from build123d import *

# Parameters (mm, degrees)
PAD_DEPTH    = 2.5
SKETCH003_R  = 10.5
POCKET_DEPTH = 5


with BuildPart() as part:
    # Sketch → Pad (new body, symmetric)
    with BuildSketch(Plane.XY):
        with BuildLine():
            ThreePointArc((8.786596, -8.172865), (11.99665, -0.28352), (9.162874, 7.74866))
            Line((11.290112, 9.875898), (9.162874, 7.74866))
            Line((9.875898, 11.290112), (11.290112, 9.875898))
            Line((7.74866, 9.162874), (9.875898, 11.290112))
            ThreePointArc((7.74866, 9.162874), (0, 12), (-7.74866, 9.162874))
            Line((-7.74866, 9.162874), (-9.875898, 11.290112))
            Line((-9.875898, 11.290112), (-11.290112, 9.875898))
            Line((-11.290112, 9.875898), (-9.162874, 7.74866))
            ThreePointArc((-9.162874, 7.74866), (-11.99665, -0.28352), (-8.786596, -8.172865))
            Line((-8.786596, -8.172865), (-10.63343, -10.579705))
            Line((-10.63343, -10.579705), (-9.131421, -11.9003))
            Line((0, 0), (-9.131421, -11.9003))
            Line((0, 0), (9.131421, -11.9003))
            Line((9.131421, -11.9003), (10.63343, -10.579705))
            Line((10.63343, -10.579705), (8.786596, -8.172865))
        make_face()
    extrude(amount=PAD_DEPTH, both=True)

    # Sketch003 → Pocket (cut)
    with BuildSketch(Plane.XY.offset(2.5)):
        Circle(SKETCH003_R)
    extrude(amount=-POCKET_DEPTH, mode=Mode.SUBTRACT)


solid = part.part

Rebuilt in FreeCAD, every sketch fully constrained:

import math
import FreeCAD as App
import Part
import Sketcher
from FreeCAD import Vector
Q = App.Units.Quantity

doc = App.newDocument("Part")
body = doc.addObject("PartDesign::Body", "Body")

sketch1 = body.newObject("Sketcher::SketchObject", "Sketch")
sketch1.AttachmentSupport = (doc.getObject("XY_Plane"), [""])
sketch1.MapMode = "FlatFace"
sketch1.addGeometry(Part.ArcOfCircle(Part.Circle(Vector(0.000001, 0, 0), Vector(0, 0, 1), 11.999999), math.radians(-42.92748), math.radians(40.219808)), False)
sketch1.addGeometry(Part.LineSegment(Vector(9.162874, 7.74866, 0), Vector(11.290112, 9.875898, 0)), False)
sketch1.addGeometry(Part.LineSegment(Vector(11.290112, 9.875898, 0), Vector(9.875898, 11.290112, 0)), False)
sketch1.addGeometry(Part.LineSegment(Vector(9.875898, 11.290112, 0), Vector(7.74866, 9.162874, 0)), False)
sketch1.addGeometry(Part.ArcOfCircle(Part.Circle(Vector(0, 0.000001, 0), Vector(0, 0, 1), 11.999999), math.radians(49.780189), math.radians(130.219811)), False)
sketch1.addGeometry(Part.LineSegment(Vector(-7.74866, 9.162874, 0), Vector(-9.875898, 11.290112, 0)), False)
sketch1.addGeometry(Part.LineSegment(Vector(-9.875898, 11.290112, 0), Vector(-11.290112, 9.875898, 0)), False)
sketch1.addGeometry(Part.LineSegment(Vector(-11.290112, 9.875898, 0), Vector(-9.162874, 7.74866, 0)), False)
sketch1.addGeometry(Part.ArcOfCircle(Part.Circle(Vector(-0.000001, 0, 0), Vector(0, 0, 1), 11.999999), math.radians(139.780192), math.radians(222.92748)), False)
sketch1.addGeometry(Part.LineSegment(Vector(-8.786596, -8.172865, 0), Vector(-10.63343, -10.579705, 0)), False)
sketch1.addGeometry(Part.LineSegment(Vector(-10.63343, -10.579705, 0), Vector(-9.131421, -11.9003, 0)), False)
sketch1.addGeometry(Part.LineSegment(Vector(-9.131421, -11.9003, 0), Vector(0, 0, 0)), False)
sketch1.addGeometry(Part.LineSegment(Vector(0, 0, 0), Vector(9.131421, -11.9003, 0)), False)
sketch1.addGeometry(Part.LineSegment(Vector(9.131421, -11.9003, 0), Vector(10.63343, -10.579705, 0)), False)
sketch1.addGeometry(Part.LineSegment(Vector(10.63343, -10.579705, 0), Vector(8.786596, -8.172865, 0)), False)
sketch1.addConstraint(Sketcher.Constraint("Coincident", 0, 2, 1, 1))
sketch1.addConstraint(Sketcher.Constraint("Coincident", 1, 2, 2, 1))
sketch1.addConstraint(Sketcher.Constraint("Coincident", 2, 2, 3, 1))
sketch1.addConstraint(Sketcher.Constraint("Coincident", 3, 2, 4, 1))
sketch1.addConstraint(Sketcher.Constraint("Coincident", 4, 2, 5, 1))
sketch1.addConstraint(Sketcher.Constraint("Coincident", 5, 2, 6, 1))
sketch1.addConstraint(Sketcher.Constraint("Coincident", 6, 2, 7, 1))
sketch1.addConstraint(Sketcher.Constraint("Coincident", 7, 2, 8, 1))
sketch1.addConstraint(Sketcher.Constraint("Coincident", 8, 2, 9, 1))
sketch1.addConstraint(Sketcher.Constraint("Coincident", 9, 2, 10, 1))
sketch1.addConstraint(Sketcher.Constraint("Coincident", 10, 2, 11, 1))
sketch1.addConstraint(Sketcher.Constraint("Coincident", 11, 2, 12, 1))
sketch1.addConstraint(Sketcher.Constraint("Coincident", 12, 2, 13, 1))
sketch1.addConstraint(Sketcher.Constraint("Coincident", 13, 2, 14, 1))
sketch1.addConstraint(Sketcher.Constraint("Coincident", 14, 2, 0, 1))
sketch1.addConstraint(Sketcher.Constraint("Coincident", 0, 3, -1, 1))
sketch1.addConstraint(Sketcher.Constraint("Coincident", 4, 3, -1, 1))
sketch1.addConstraint(Sketcher.Constraint("Coincident", 8, 3, -1, 1))
sketch1.addConstraint(Sketcher.Constraint("Coincident", 11, 2, -1, 1))
sketch1.addConstraint(Sketcher.Constraint("Equal", 0, 4))
sketch1.addConstraint(Sketcher.Constraint("Equal", 4, 8))
sketch1.addConstraint(Sketcher.Constraint("Symmetric", 2, 2, 5, 2, -2))
sketch1.addConstraint(Sketcher.Constraint("Symmetric", 1, 2, 6, 2, -2))
sketch1.addConstraint(Sketcher.Constraint("Symmetric", 10, 2, 12, 2, -2))
sketch1.addConstraint(Sketcher.Constraint("Symmetric", 9, 2, 13, 2, -2))
sketch1.addConstraint(Sketcher.Constraint("Perpendicular", 1, 2))
sketch1.addConstraint(Sketcher.Constraint("Perpendicular", 2, 3))
sketch1.addConstraint(Sketcher.Constraint("Perpendicular", 3, 5))
sketch1.addConstraint(Sketcher.Constraint("Perpendicular", 5, 6))
sketch1.addConstraint(Sketcher.Constraint("Perpendicular", 6, 7))
sketch1.addConstraint(Sketcher.Constraint("Parallel", 9, 11))
sketch1.addConstraint(Sketcher.Constraint("Parallel", 12, 14))
sketch1.addConstraint(Sketcher.Constraint("Equal", 1, 3))
sketch1.addConstraint(Sketcher.Constraint("Equal", 6, 10))
sketch1.addConstraint(Sketcher.Constraint("Radius", 0, Q("11.999999 mm")))
sketch1.addConstraint(Sketcher.Constraint("Distance", 2, Q("2.000001 mm")))
sketch1.addConstraint(Sketcher.Constraint("Distance", 11, Q("15 mm")))
sketch1.addConstraint(Sketcher.Constraint("Angle", 9, Q("-127.500011 deg")))
sketch1.addConstraint(Sketcher.Constraint("DistanceY", 0, 3, 1, 2, Q("9.875898 mm")))
sketch1.addConstraint(Sketcher.Constraint("DistanceX", 9, 2, -1, 1, Q("10.63343 mm")))
pad1 = body.newObject("PartDesign::Pad", "Pad")
pad1.Profile = sketch1
pad1.Length = 5
pad1.Midplane = True

sketch2 = body.newObject("Sketcher::SketchObject", "Sketch001")
sketch2.AttachmentSupport = (doc.getObject("XY_Plane"), [""])
sketch2.MapMode = "FlatFace"
sketch2.AttachmentOffset = App.Placement(Vector(0, 0, 2.5), App.Rotation())
sketch2.addGeometry(Part.Circle(Vector(0, 0, 0), Vector(0, 0, 1), 10.5), False)
sketch2.addConstraint(Sketcher.Constraint("Coincident", 0, 3, -1, 1))
sketch2.addConstraint(Sketcher.Constraint("Diameter", 0, Q("21 mm")))
pocket1 = body.newObject("PartDesign::Pocket", "Pocket")
pocket1.Profile = sketch2
pocket1.Length = 5

doc.recompute()
